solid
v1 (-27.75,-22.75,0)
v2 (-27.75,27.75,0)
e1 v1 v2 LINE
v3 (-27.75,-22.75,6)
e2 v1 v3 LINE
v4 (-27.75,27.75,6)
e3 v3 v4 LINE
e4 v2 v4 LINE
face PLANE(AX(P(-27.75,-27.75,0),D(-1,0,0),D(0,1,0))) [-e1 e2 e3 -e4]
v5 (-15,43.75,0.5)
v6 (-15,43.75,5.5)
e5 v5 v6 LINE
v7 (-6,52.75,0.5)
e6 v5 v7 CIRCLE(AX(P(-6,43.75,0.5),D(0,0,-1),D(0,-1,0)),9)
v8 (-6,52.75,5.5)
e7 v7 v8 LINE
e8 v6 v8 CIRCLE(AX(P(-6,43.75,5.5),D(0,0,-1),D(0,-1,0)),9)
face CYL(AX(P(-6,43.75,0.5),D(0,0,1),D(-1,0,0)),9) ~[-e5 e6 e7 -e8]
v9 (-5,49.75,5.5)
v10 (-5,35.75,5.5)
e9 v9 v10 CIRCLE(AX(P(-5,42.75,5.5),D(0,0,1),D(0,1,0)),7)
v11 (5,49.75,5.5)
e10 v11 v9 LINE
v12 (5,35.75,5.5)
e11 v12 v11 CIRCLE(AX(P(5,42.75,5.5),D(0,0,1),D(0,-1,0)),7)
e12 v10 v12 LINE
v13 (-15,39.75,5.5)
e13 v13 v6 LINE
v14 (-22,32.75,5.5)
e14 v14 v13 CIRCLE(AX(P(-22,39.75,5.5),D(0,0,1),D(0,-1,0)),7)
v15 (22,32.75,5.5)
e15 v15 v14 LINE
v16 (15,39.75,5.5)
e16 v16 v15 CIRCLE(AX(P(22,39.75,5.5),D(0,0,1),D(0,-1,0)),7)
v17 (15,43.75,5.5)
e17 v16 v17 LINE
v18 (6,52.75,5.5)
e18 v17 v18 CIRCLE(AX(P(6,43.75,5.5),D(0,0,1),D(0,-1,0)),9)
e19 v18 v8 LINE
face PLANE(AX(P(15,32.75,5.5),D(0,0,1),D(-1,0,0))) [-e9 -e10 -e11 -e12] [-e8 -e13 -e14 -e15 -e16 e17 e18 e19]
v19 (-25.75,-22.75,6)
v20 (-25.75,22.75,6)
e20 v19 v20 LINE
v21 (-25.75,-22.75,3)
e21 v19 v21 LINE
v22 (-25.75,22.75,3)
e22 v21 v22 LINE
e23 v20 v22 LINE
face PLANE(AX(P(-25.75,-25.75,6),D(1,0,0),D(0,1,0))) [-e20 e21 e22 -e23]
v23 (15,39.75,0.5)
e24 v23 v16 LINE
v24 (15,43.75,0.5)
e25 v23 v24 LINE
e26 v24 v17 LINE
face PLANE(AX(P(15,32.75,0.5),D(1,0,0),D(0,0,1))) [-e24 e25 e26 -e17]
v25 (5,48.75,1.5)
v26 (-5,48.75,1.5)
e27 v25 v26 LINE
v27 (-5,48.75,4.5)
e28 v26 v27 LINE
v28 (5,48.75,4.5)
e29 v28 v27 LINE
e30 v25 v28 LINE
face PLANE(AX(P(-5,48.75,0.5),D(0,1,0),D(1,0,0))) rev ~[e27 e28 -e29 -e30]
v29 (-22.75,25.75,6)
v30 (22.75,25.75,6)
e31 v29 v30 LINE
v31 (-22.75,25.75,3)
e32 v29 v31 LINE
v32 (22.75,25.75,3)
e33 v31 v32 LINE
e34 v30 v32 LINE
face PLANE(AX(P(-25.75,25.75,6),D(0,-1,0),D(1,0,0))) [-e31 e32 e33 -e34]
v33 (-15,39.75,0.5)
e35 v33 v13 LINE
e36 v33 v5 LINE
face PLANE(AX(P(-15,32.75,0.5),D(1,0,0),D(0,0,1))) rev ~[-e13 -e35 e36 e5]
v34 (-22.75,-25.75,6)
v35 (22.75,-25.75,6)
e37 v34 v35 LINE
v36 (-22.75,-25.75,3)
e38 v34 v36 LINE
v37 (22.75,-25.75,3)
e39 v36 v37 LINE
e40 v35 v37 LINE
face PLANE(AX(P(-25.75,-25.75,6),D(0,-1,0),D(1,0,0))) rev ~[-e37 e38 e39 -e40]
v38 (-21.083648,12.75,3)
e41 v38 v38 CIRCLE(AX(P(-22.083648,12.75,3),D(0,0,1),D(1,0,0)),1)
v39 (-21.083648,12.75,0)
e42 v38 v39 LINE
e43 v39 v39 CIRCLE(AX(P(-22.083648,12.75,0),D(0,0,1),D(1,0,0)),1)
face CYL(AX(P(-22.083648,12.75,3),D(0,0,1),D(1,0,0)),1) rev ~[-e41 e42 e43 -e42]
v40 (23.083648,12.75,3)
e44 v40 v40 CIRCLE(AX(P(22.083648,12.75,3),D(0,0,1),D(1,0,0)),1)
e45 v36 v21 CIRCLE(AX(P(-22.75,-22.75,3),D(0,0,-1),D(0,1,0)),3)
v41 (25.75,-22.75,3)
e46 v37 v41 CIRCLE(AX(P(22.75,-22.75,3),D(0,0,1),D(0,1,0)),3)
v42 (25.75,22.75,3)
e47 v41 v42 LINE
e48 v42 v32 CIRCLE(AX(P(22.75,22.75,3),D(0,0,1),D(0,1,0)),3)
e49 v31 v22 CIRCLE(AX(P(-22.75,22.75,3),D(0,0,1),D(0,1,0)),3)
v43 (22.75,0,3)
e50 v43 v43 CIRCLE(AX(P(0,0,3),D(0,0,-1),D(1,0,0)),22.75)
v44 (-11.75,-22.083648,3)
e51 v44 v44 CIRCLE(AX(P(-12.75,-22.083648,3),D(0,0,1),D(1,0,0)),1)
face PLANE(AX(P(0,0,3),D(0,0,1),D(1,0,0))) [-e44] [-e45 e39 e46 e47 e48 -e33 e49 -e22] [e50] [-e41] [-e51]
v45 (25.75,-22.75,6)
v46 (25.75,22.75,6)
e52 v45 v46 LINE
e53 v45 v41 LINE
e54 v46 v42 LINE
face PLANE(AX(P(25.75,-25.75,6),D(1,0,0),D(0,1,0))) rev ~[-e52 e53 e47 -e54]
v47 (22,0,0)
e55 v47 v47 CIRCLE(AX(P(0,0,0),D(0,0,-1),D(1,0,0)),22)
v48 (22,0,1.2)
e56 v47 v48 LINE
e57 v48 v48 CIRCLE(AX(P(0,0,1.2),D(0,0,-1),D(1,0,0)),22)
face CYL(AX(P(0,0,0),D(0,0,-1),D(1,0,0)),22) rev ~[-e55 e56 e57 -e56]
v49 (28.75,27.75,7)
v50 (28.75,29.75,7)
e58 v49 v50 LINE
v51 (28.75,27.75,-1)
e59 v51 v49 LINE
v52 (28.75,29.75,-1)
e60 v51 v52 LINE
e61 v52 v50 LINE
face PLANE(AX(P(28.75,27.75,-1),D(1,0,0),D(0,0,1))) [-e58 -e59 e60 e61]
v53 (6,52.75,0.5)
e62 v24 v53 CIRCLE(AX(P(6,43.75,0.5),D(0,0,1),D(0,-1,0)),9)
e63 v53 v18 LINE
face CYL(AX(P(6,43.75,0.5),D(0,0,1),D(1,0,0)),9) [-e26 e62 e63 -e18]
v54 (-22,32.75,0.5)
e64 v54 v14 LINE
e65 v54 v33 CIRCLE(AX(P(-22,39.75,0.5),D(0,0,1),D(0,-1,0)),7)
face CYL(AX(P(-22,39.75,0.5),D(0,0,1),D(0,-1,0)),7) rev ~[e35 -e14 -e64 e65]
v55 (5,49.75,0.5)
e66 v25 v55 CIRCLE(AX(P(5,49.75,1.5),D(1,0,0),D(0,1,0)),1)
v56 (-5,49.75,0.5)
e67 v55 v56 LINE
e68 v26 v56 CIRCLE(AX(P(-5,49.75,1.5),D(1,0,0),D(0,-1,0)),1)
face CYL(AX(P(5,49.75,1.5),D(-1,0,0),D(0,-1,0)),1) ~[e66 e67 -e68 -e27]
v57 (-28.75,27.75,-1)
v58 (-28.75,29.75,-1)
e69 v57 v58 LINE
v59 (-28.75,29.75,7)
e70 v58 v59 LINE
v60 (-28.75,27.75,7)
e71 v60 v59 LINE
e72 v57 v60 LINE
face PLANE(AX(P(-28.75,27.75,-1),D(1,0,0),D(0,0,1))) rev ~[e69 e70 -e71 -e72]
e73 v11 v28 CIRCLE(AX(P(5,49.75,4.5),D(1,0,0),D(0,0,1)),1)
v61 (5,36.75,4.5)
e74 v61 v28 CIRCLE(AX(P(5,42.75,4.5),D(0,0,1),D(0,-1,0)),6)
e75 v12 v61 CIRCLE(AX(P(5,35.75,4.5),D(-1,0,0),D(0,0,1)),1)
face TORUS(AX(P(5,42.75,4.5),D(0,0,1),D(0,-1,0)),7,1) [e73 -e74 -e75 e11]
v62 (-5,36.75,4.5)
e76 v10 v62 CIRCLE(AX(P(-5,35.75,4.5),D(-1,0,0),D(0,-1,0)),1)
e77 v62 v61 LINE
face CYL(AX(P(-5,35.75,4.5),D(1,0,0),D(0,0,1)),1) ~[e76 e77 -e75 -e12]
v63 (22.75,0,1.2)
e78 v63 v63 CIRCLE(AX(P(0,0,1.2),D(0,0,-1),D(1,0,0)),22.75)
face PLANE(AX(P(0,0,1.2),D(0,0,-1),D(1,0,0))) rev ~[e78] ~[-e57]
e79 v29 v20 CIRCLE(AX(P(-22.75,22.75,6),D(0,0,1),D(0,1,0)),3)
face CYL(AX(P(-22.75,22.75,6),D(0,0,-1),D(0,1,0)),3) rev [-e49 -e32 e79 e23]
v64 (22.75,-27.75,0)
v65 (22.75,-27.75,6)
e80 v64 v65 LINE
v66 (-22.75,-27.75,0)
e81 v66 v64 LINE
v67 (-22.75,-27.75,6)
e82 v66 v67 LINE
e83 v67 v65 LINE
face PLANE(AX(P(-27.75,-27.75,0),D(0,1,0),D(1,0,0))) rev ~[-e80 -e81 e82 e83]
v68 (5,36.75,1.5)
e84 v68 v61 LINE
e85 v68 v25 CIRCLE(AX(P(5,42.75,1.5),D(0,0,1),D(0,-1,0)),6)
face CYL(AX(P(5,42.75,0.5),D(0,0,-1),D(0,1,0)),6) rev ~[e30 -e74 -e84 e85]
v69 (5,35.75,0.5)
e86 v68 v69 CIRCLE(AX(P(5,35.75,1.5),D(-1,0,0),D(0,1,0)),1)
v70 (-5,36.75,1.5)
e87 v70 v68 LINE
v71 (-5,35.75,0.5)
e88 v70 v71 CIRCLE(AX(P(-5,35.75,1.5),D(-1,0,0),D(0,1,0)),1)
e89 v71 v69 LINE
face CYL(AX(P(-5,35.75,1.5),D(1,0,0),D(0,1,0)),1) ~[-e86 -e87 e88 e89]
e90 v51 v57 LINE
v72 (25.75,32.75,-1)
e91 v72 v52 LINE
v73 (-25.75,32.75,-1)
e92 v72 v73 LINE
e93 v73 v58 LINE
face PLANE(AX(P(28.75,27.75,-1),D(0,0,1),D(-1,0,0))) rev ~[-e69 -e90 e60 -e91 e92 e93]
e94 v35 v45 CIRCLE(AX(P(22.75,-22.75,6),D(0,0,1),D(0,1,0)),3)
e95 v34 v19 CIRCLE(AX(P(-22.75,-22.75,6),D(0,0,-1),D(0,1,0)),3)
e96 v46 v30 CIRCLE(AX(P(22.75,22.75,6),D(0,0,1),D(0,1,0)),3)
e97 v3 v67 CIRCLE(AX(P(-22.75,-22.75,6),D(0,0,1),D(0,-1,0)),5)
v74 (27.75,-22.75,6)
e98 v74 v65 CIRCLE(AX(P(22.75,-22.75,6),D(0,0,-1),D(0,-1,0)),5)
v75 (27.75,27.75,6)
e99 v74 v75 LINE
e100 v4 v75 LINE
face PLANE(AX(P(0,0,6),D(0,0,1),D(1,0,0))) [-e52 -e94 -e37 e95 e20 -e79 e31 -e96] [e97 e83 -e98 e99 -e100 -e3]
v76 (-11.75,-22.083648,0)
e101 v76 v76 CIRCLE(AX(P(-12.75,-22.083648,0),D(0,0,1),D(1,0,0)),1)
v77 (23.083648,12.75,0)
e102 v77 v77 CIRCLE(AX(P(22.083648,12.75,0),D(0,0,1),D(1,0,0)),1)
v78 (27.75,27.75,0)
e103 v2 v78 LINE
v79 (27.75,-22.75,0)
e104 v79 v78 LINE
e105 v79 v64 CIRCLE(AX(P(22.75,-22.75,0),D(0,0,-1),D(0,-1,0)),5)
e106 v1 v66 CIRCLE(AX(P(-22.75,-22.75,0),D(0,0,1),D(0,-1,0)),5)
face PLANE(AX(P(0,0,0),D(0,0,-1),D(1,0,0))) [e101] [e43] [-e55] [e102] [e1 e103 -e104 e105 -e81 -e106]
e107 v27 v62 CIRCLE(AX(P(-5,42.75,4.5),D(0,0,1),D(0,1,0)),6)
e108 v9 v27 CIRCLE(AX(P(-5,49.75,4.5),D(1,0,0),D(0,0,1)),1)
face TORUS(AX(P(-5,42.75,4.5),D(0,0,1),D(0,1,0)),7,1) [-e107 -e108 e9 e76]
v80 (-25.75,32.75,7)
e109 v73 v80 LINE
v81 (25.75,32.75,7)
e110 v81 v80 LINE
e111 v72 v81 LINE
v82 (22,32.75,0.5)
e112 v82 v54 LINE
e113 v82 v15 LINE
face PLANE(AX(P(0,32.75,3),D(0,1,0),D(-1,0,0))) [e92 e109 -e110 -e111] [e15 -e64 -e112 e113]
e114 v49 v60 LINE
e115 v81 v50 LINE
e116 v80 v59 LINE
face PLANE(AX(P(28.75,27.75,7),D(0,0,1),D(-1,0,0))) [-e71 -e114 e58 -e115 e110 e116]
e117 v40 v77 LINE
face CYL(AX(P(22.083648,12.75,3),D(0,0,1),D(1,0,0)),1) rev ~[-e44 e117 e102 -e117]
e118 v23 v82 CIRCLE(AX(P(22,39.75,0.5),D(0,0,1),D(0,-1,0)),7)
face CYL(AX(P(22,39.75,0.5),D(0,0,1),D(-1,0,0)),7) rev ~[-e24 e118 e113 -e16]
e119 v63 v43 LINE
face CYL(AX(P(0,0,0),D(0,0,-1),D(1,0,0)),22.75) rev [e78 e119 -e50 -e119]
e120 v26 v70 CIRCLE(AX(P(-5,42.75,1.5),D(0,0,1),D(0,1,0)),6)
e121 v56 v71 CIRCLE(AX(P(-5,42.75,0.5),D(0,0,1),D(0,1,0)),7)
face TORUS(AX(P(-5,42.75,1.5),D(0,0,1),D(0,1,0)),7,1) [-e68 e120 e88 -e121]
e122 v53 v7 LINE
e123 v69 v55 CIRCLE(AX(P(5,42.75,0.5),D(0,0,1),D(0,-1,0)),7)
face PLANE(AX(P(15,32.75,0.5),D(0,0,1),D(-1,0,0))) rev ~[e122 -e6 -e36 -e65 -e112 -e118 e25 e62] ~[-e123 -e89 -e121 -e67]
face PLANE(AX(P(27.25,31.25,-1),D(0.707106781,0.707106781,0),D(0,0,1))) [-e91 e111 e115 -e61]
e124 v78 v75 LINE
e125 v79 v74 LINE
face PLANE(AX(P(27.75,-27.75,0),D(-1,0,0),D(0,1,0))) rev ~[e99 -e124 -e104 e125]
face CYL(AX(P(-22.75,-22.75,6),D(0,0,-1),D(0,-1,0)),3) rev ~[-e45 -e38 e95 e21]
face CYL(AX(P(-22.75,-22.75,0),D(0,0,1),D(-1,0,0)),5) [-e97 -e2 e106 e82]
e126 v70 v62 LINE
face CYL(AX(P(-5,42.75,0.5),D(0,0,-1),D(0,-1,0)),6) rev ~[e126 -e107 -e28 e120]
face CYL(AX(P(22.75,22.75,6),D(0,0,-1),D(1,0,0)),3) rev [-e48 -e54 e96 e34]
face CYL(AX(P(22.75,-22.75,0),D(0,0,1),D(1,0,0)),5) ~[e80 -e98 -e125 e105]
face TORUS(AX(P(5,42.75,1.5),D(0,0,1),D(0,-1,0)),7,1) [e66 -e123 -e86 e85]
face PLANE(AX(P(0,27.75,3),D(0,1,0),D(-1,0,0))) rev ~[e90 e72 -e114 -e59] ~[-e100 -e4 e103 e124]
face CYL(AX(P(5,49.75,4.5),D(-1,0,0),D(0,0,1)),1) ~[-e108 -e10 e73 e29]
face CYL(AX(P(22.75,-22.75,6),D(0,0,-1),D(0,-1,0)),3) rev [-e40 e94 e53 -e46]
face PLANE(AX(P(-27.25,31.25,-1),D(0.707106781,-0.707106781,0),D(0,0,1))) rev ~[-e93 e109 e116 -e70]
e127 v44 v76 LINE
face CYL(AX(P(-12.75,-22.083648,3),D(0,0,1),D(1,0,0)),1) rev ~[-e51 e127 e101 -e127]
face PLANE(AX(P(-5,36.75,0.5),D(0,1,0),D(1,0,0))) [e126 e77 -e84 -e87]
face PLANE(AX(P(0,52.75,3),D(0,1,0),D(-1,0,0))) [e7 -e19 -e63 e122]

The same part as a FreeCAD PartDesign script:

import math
import FreeCAD as App
import Part
import Sketcher


def edges_at(feature, points):
    """Names of the edges that pass closest to the given points."""
    edges = feature.Shape.Edges
    near = lambda p: min(range(len(edges)), key=lambda i: edges[i].distToShape(Part.Vertex(*p))[0])
    return sorted({f"Edge{near(p) + 1}" for p in points})


def add_polygon(sketch, points):
    """Adds a closed chain of lines whose ends are joined by coincident constraints."""
    first, n = sketch.GeometryCount, len(points)
    for a, b in zip(points, points[1:] + points[:1]):
        sketch.addGeometry(Part.LineSegment(App.Vector(*a, 0), App.Vector(*b, 0)), False)
    for i in range(n):
        sketch.addConstraint(Sketcher.Constraint("Coincident", first + i, 2, first + (i + 1) % n, 1))

doc = App.newDocument("Part")
params = doc.addObject("Spreadsheet::Sheet", "Params")
for row, (alias, value) in enumerate([
    ("sketch1_diameter", "45.5 mm"),
    ("sketch1_width", "55.5 mm"),
    ("pad1_length", "6 mm"),
    ("sketch2_height", "8 mm"),
    ("sketch2_width", "57.5 mm"),
    ("pad2_length", "5 mm"),
    ("sketch3_width", "30 mm"),
    ("sketch3_height", "5 mm"),
    ("pad3_length", "20 mm"),
    ("fillet_radius", "5 mm"),
    ("sketch4_radius", "6 mm"),
    ("sketch4_width", "10 mm"),
    ("pocket1_length", "6 mm"),
    ("fillet2_radius", "9 mm"),
    ("fillet3_radius", "7 mm"),
    ("chamfer_size", "3 mm"),
    ("sketch5_diameter", "44 mm"),
    ("sketch5_diameter2", "45.5 mm"),
    ("pad4_length", "1.2 mm"),
    ("sketch6_width", "51.5 mm"),
    ("pocket2_length", "3 mm"),
    ("sketch7_diameter", "2 mm"),
    ("pocket3_length", "6 mm"),
    ("fillet4_radius", "1 mm"),
    ("fillet5_radius", "1 mm"),
    ("fillet6_radius", "3 mm"),
], start=1):
    params.set(f"A{row}", alias)
    params.set(f"B{row}", "=" + value)
    params.setAlias(f"B{row}", alias)

body = doc.addObject("PartDesign::Body", "Body")

sketch1 = body.newObject("Sketcher::SketchObject", "Sketch")
sketch1.AttachmentSupport = (doc.getObject("XY_Plane"), [""])
sketch1.MapMode = "FlatFace"
add_polygon(sketch1, [(-28, 28), (-28, -28), (28, -28), (28, 28)])
sketch1.addGeometry(Part.Circle(App.Vector(0, 0, 0), App.Vector(0, 0, 1), 23), False)
sketch1.addConstraint(Sketcher.Constraint("Vertical", 0))
sketch1.addConstraint(Sketcher.Constraint("Horizontal", 1))
sketch1.addConstraint(Sketcher.Constraint("Vertical", 2))
sketch1.addConstraint(Sketcher.Constraint("Horizontal", 3))
sketch1.addConstraint(Sketcher.Constraint("Coincident", 4, 3, -1, 1))
sketch1.addConstraint(Sketcher.Constraint("Symmetric", 0, 2, 2, 2, -1, 1))
sketch1.addConstraint(Sketcher.Constraint("Equal", 3, 0))
sketch1.addConstraint(Sketcher.Constraint("Diameter", 4, 45.5))
sketch1.addConstraint(Sketcher.Constraint("DistanceX", 1, 1, 1, 2, 55.5))
sketch1.setExpression("Constraints[11]", "Params.sketch1_diameter")
sketch1.setExpression("Constraints[12]", "Params.sketch1_width")
pad1 = body.newObject("PartDesign::Pad", "Pad")
pad1.Profile = sketch1
pad1.setExpression("Length", "Params.pad1_length")

sketch2 = body.newObject("Sketcher::SketchObject", "Sketch001")
sketch2.AttachmentSupport = (doc.getObject("XZ_Plane"), [""])
sketch2.MapMode = "FlatFace"
sketch2.AttachmentOffset = App.Placement(App.Vector(0, 0, -27.75), App.Rotation())
add_polygon(sketch2, [(29, 7), (29, -1), (-29, -1), (-29, 7)])
sketch2.addConstraint(Sketcher.Constraint("Vertical", 0))
sketch2.addConstraint(Sketcher.Constraint("Horizontal", 1))
sketch2.addConstraint(Sketcher.Constraint("Vertical", 2))
sketch2.addConstraint(Sketcher.Constraint("Horizontal", 3))
sketch2.addConstraint(Sketcher.Constraint("DistanceY", 0, 2, 0, 1, 8.0))
sketch2.addConstraint(Sketcher.Constraint("DistanceX", 1, 2, 1, 1, 57.5))
sketch2.addConstraint(Sketcher.Constraint("DistanceY", 0, 2, -1, 1, 1.0))
sketch2.addConstraint(Sketcher.Constraint("DistanceX", -1, 1, 0, 2, 28.75))
sketch2.setExpression("Constraints[8]", "Params.sketch2_height")
sketch2.setExpression("Constraints[9]", "Params.sketch2_width")
pad2 = body.newObject("PartDesign::Pad", "Pad001")
pad2.Profile = sketch2
pad2.setExpression("Length", "Params.pad2_length")
pad2.Reversed = True

sketch3 = body.newObject("Sketcher::SketchObject", "Sketch002")
sketch3.AttachmentSupport = (doc.getObject("XZ_Plane"), [""])
sketch3.MapMode = "FlatFace"
sketch3.AttachmentOffset = App.Placement(App.Vector(0, 0, -32.75), App.Rotation())
add_polygon(sketch3, [(15, 6), (15, 0), (-15, 0), (-15, 6)])
sketch3.addConstraint(Sketcher.Constraint("Vertical", 0))
sketch3.addConstraint(Sketcher.Constraint("Horizontal", 1))
sketch3.addConstraint(Sketcher.Constraint("Vertical", 2))
sketch3.addConstraint(Sketcher.Constraint("Horizontal", 3))
sketch3.addConstraint(Sketcher.Constraint("DistanceX", 1, 2, 1, 1, 30.0))
sketch3.addConstraint(Sketcher.Constraint("DistanceY", 0, 2, 0, 1, 5.0))
sketch3.addConstraint(Sketcher.Constraint("DistanceX", -1, 1, 0, 2, 15.0))
sketch3.addConstraint(Sketcher.Constraint("DistanceY", -1, 1, 0, 2, 0.5))
sketch3.setExpression("Constraints[8]", "Params.sketch3_width")
sketch3.setExpression("Constraints[9]", "Params.sketch3_height")
pad3 = body.newObject("PartDesign::Pad", "Pad002")
pad3.Profile = sketch3
pad3.setExpression("Length", "Params.pad3_length")
pad3.Reversed = True
doc.recompute()

fillet = body.newObject("PartDesign::Fillet", "Fillet")
fillet.Base = (pad3, edges_at(pad3, [(-27.75, -27.75, 3), (27.75, -27.75, 3)]))
fillet.setExpression("Radius", "Params.fillet_radius")

sketch4 = body.newObject("Sketcher::SketchObject", "Sketch003")
sketch4.AttachmentSupport = (doc.getObject("XY_Plane"), [""])
sketch4.MapMode = "FlatFace"
sketch4.AttachmentOffset = App.Placement(App.Vector(0, 0, 0.5), App.Rotation())
sketch4.addGeometry(Part.ArcOfCircle(Part.Circle(App.Vector(-5, 43, 0), App.Vector(0, 0, 1), 6), math.radians(90), math.radians(270)), False)
sketch4.addGeometry(Part.LineSegment(App.Vector(-5, 49, 0), App.Vector(5, 49, 0)), False)
sketch4.addGeometry(Part.ArcOfCircle(Part.Circle(App.Vector(5, 43, 0), App.Vector(0, 0, 1), 6), math.radians(-90), math.radians(90)), False)
sketch4.addGeometry(Part.LineSegment(App.Vector(5, 37, 0), App.Vector(-5, 37, 0)), False)
sketch4.addConstraint(Sketcher.Constraint("Tangent", 0, 1, 1, 1))
sketch4.addConstraint(Sketcher.Constraint("Tangent", 1, 2, 2, 2))
sketch4.addConstraint(Sketcher.Constraint("Tangent", 2, 1, 3, 1))
sketch4.addConstraint(Sketcher.Constraint("Tangent", 3, 2, 0, 2))
sketch4.addConstraint(Sketcher.Constraint("Horizontal", 1))
sketch4.addConstraint(Sketcher.Constraint("Horizontal", 3))
sketch4.addConstraint(Sketcher.Constraint("Radius", 0, 6.0))
sketch4.addConstraint(Sketcher.Constraint("DistanceX", 1, 1, 1, 2, 10.0))
sketch4.addConstraint(Sketcher.Constraint("DistanceX", 0, 3, -1, 1, 5.0))
sketch4.addConstraint(Sketcher.Constraint("DistanceY", -1, 1, 0, 3, 42.75))
sketch4.setExpression("Constraints[6]", "Params.sketch4_radius")
sketch4.setExpression("Constraints[7]", "Params.sketch4_width")
pocket1 = body.newObject("PartDesign::Pocket", "Pocket")
pocket1.Profile = sketch4
pocket1.setExpression("Length", "Params.pocket1_length")
pocket1.Reversed = True
doc.recompute()

fillet2 = body.newObject("PartDesign::Fillet", "Fillet001")
fillet2.Base = (pocket1, edges_at(pocket1, [(15, 52.75, 3), (-15, 52.75, 3)]))
fillet2.setExpression("Radius", "Params.fillet2_radius")
doc.recompute()

fillet3 = body.newObject("PartDesign::Fillet", "Fillet002")
fillet3.Base = (fillet2, edges_at(fillet2, [(15, 32.75, 3), (-15, 32.75, 3)]))
fillet3.setExpression("Radius", "Params.fillet3_radius")
doc.recompute()

chamfer = body.newObject("PartDesign::Chamfer", "Chamfer")
chamfer.Base = (fillet3, edges_at(fillet3, [(-28.75, 32.75, 3), (28.75, 32.75, 3)]))
chamfer.setExpression("Size", "Params.chamfer_size")

sketch5 = body.newObject("Sketcher::SketchObject", "Sketch004")
sketch5.AttachmentSupport = (doc.getObject("XY_Plane"), [""])
sketch5.MapMode = "FlatFace"
sketch5.addGeometry(Part.Circle(App.Vector(0, 0, 0), App.Vector(0, 0, 1), 23), False)
sketch5.addGeometry(Part.Circle(App.Vector(0, 0, 0), App.Vector(0, 0, 1), 22), False)
sketch5.addConstraint(Sketcher.Constraint("Coincident", 0, 3, -1, 1))
sketch5.addConstraint(Sketcher.Constraint("Coincident", 1, 3, -1, 1))
sketch5.addConstraint(Sketcher.Constraint("Diameter", 1, 44.0))
sketch5.addConstraint(Sketcher.Constraint("Diameter", 0, 45.5))
sketch5.setExpression("Constraints[2]", "Params.sketch5_diameter")
sketch5.setExpression("Constraints[3]", "Params.sketch5_diameter2")
pad4 = body.newObject("PartDesign::Pad", "Pad003")
pad4.Profile = sketch5
pad4.setExpression("Length", "Params.pad4_length")

sketch6 = body.newObject("Sketcher::SketchObject", "Sketch005")
sketch6.AttachmentSupport = (doc.getObject("XY_Plane"), [""])
sketch6.MapMode = "FlatFace"
sketch6.AttachmentOffset = App.Placement(App.Vector(0, 0, 6), App.Rotation())
add_polygon(sketch6, [(-26, 26), (-26, -26), (26, -26), (26, 26)])
sketch6.addConstraint(Sketcher.Constraint("Vertical", 0))
sketch6.addConstraint(Sketcher.Constraint("Horizontal", 1))
sketch6.addConstraint(Sketcher.Constraint("Vertical", 2))
sketch6.addConstraint(Sketcher.Constraint("Horizontal", 3))
sketch6.addConstraint(Sketcher.Constraint("Symmetric", 0, 2, 2, 2, -1, 1))
sketch6.addConstraint(Sketcher.Constraint("Equal", 3, 0))
sketch6.addConstraint(Sketcher.Constraint("DistanceX", 1, 1, 1, 2, 51.5))
sketch6.setExpression("Constraints[10]", "Params.sketch6_width")
pocket2 = body.newObject("PartDesign::Pocket", "Pocket001")
pocket2.Profile = sketch6
pocket2.setExpression("Length", "Params.pocket2_length")

sketch7 = body.newObject("Sketcher::SketchObject", "Sketch006")
sketch7.AttachmentSupport = (doc.getObject("XY_Plane"), [""])
sketch7.MapMode = "FlatFace"
sketch7.AttachmentOffset = App.Placement(App.Vector(0, 0, 3), App.Rotation())
sketch7.addGeometry(Part.Circle(App.Vector(-22.1, 12.8, 0), App.Vector(0, 0, 1), 1), False)
sketch7.addGeometry(Part.Circle(App.Vector(22.1, 12.8, 0), App.Vector(0, 0, 1), 1), False)
sketch7.addGeometry(Part.Circle(App.Vector(-12.8, -22.1, 0), App.Vector(0, 0, 1), 1), False)
sketch7.addConstraint(Sketcher.Constraint("Equal", 0, 1))
sketch7.addConstraint(Sketcher.Constraint("Equal", 1, 2))
sketch7.addConstraint(Sketcher.Constraint("Symmetric", 0, 3, 1, 3, -2))
sketch7.addConstraint(Sketcher.Constraint("Diameter", 0, 2.0))
sketch7.addConstraint(Sketcher.Constraint("DistanceY", -1, 1, 0, 3, 12.75))
sketch7.addConstraint(Sketcher.Constraint("DistanceX", 2, 3, -1, 1, 12.75))
sketch7.addConstraint(Sketcher.Constraint("DistanceX", 0, 3, -1, 1, 22.083648))
sketch7.addConstraint(Sketcher.Constraint("DistanceY", 2, 3, -1, 1, 22.083648))
sketch7.setExpression("Constraints[3]", "Params.sketch7_diameter")
pocket3 = body.newObject("PartDesign::Pocket", "Pocket002")
pocket3.Profile = sketch7
pocket3.setExpression("Length", "Params.pocket3_length")
doc.recompute()

fillet4 = body.newObject("PartDesign::Fillet", "Fillet003")
fillet4.Base = (pocket3, edges_at(pocket3, [(0, 48.75, 5.5)]))
fillet4.setExpression("Radius", "Params.fillet4_radius")
doc.recompute()

fillet5 = body.newObject("PartDesign::Fillet", "Fillet004")
fillet5.Base = (fillet4, edges_at(fillet4, [(0, 36.75, 0.5)]))
fillet5.setExpression("Radius", "Params.fillet5_radius")
doc.recompute()

fillet6 = body.newObject("PartDesign::Fillet", "Fillet005")
fillet6.Base = (fillet5, edges_at(fillet5, [
    (-25.75, -25.75, 4.5),
    (25.75, -25.75, 4.5),
    (25.75, 25.75, 4.5),
    (-25.75, 25.75, 4.5),
]))
fillet6.setExpression("Radius", "Params.fillet6_radius")

doc.recompute()
